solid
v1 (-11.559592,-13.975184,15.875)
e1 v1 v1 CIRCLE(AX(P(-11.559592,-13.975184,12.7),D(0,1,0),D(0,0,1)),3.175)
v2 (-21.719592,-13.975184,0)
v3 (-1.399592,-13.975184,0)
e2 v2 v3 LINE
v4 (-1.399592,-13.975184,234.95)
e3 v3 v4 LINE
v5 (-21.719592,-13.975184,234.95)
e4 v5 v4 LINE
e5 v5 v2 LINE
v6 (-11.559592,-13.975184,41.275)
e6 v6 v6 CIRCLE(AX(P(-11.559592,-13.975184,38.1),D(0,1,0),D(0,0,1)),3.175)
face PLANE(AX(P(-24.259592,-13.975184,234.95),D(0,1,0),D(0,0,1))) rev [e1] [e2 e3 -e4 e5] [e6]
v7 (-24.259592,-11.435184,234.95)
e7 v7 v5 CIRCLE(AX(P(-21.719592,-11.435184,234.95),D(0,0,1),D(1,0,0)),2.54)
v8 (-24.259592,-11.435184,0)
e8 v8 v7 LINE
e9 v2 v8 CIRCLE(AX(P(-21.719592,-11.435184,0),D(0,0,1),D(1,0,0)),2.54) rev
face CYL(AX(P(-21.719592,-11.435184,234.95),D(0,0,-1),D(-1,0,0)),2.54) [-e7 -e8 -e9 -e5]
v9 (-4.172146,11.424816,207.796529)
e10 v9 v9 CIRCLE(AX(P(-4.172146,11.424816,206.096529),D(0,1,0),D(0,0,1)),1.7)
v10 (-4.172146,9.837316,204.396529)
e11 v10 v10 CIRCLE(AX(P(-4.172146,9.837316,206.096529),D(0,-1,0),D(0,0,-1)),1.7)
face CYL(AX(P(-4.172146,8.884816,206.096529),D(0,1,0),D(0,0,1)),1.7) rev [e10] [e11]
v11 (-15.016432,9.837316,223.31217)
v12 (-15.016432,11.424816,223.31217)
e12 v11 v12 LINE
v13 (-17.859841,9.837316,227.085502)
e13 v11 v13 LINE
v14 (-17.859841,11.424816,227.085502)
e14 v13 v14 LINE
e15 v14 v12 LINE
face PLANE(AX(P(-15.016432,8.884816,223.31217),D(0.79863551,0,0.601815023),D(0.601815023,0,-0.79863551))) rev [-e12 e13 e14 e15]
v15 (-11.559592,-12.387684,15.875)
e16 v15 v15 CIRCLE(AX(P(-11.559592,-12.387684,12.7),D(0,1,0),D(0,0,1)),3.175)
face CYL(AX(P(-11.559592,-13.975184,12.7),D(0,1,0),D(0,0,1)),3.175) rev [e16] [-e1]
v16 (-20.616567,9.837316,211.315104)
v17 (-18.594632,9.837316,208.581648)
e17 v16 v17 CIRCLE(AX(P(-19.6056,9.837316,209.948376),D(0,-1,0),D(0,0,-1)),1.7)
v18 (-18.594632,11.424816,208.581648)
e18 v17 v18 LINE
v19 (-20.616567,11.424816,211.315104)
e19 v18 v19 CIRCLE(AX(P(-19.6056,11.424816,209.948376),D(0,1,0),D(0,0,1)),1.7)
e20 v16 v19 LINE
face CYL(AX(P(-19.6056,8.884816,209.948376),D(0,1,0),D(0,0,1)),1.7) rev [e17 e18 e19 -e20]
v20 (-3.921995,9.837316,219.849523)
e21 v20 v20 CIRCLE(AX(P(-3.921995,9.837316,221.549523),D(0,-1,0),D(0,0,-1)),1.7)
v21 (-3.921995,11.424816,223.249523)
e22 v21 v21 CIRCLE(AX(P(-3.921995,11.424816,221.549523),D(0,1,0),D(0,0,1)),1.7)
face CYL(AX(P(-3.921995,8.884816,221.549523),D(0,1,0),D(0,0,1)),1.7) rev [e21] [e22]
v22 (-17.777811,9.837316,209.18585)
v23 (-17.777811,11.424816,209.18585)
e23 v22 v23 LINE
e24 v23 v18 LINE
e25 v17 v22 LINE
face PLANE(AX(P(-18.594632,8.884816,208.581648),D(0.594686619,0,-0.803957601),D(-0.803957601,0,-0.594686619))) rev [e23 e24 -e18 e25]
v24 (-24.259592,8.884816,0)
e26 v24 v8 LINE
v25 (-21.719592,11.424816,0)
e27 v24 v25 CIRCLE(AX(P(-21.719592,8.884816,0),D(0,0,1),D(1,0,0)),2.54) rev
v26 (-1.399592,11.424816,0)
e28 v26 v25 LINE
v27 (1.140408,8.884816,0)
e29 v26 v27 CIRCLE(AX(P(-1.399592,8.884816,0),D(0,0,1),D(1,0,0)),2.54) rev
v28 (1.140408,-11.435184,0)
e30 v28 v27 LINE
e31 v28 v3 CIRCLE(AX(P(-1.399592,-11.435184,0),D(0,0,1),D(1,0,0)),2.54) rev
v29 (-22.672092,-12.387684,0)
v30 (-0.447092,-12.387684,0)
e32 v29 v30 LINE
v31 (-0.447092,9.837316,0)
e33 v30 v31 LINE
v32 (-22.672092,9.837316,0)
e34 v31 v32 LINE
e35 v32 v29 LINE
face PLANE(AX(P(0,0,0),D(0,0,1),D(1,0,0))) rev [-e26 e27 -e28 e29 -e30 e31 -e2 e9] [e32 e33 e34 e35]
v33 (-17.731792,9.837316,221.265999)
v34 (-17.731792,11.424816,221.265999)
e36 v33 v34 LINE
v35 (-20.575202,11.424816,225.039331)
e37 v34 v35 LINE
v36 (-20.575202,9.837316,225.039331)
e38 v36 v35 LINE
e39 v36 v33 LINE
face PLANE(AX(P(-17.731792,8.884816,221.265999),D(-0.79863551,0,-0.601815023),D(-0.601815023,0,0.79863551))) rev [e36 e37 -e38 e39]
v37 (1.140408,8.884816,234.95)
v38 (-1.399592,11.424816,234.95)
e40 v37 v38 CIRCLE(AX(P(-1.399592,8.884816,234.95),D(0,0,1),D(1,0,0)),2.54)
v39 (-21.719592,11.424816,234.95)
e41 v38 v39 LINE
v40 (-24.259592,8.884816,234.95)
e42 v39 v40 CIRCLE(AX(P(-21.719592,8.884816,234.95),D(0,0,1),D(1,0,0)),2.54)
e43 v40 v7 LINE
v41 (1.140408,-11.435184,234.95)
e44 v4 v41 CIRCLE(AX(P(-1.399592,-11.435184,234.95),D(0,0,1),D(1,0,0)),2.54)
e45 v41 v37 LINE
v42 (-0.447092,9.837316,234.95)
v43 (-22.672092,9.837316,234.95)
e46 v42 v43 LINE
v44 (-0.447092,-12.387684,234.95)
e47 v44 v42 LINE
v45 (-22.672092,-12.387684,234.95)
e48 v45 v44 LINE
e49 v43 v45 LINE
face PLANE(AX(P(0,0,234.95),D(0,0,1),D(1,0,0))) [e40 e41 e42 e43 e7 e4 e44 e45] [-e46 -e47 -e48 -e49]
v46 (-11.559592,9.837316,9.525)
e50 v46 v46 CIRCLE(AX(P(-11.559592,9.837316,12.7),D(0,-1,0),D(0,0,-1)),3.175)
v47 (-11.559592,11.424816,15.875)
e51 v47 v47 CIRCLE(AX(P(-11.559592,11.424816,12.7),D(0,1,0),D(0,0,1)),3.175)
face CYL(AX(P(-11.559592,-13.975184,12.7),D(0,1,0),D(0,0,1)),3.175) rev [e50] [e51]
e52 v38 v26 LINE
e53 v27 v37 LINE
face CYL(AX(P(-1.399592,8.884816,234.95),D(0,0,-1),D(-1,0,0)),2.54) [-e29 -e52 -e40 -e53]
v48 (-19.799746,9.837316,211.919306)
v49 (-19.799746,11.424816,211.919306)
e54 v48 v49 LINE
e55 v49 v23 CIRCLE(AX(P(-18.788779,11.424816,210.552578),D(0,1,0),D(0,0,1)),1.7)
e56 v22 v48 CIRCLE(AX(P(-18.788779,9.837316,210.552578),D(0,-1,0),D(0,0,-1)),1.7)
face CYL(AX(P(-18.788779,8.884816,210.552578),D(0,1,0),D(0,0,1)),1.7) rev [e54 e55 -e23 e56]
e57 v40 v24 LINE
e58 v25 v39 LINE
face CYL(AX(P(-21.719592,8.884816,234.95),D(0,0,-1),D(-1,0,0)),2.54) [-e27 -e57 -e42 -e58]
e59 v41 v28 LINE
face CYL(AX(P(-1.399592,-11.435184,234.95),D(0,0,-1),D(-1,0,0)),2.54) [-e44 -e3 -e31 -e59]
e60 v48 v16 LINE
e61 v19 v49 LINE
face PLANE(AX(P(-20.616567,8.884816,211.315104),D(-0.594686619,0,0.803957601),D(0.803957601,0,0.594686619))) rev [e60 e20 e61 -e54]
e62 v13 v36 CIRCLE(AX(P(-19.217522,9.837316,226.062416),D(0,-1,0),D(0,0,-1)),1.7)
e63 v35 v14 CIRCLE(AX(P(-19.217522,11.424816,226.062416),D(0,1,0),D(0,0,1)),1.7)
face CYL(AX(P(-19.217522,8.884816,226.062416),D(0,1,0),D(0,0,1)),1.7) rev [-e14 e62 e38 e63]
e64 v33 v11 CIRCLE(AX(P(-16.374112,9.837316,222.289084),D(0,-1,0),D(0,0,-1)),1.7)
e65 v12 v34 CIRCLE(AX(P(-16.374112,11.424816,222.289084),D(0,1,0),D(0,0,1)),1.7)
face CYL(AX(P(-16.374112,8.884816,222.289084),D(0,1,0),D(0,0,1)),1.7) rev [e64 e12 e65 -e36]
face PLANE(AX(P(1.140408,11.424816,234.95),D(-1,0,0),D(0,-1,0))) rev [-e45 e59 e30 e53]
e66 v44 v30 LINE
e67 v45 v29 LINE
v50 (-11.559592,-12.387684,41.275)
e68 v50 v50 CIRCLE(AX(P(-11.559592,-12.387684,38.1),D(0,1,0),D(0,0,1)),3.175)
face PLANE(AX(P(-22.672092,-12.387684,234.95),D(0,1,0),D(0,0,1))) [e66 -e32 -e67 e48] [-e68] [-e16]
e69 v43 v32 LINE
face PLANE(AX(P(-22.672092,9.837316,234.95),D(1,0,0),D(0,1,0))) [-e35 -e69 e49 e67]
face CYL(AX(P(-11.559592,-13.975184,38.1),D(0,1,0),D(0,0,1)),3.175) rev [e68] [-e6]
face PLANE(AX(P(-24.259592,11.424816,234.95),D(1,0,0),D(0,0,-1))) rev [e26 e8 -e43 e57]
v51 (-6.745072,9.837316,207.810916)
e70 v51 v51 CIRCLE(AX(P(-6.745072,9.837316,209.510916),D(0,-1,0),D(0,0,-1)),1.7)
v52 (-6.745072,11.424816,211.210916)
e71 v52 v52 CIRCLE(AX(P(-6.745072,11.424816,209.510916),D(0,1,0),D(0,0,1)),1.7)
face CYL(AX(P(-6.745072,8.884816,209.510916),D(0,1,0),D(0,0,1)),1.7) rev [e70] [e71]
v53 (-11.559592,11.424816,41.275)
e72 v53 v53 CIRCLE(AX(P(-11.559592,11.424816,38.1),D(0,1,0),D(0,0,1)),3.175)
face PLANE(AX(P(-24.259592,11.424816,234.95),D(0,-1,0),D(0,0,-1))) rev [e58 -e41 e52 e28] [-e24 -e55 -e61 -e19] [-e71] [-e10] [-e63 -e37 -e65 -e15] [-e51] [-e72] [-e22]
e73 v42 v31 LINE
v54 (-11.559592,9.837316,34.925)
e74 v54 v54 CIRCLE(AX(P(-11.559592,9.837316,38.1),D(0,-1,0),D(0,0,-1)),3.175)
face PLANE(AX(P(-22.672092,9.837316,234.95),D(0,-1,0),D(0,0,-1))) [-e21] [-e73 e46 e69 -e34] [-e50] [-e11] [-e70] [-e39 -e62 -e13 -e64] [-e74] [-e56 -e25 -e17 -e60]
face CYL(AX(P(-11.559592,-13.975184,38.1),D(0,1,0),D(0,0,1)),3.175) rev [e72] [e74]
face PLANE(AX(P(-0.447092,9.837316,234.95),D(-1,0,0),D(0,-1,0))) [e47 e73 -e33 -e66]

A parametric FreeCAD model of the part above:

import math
import FreeCAD as App
import Part
import Sketcher

V = App.Vector
Q = App.Units.Quantity


def edges_at(feature, points):
    """Names of the edges that pass closest to the given points."""
    edges = feature.Shape.Edges
    near = lambda p: min(range(len(edges)), key=lambda i: edges[i].distToShape(Part.Vertex(*p))[0])
    return sorted({f"Edge{near(p) + 1}" for p in points})

doc = App.newDocument("Part")
params = doc.addObject("Spreadsheet::Sheet", "Params")
for row, (alias, value) in enumerate([
    ("sketch1_width", "1 in"),
    ("sketch1_width2", "0.875 in"),
    ("pad1_length", "9.25 in"),
    ("fillet_radius", "0.1 in"),
    ("sketch2_diameter", "0.25 in"),
    ("sketch3_length", "0.04 in"),
    ("pocket2_length", "0.1 in"),
], start=1):
    params.set(f"A{row}", alias)
    params.set(f"B{row}", "=" + value)
    params.setAlias(f"B{row}", alias)

body = doc.addObject("PartDesign::Body", "Body")

# Sketch on XY plane
sketch1 = body.newObject("Sketcher::SketchObject", "Sketch")
sketch1.AttachmentSupport = (doc.getObject("XY_Plane"), [""])
sketch1.MapMode = "FlatFace"
sketch1.addGeometry(Part.LineSegment(V(-24, 11, 0), V(-24, -14, 0)), False)
sketch1.addGeometry(Part.LineSegment(V(-24, -14, 0), V(1, -14, 0)), False)
sketch1.addGeometry(Part.LineSegment(V(1, -14, 0), V(1, 11, 0)), False)
sketch1.addGeometry(Part.LineSegment(V(1, 11, 0), V(-24, 11, 0)), False)
sketch1.addGeometry(Part.LineSegment(V(0, -12, 0), V(-23, -12, 0)), False)
sketch1.addGeometry(Part.LineSegment(V(-23, -12, 0), V(-23, 10, 0)), False)
sketch1.addGeometry(Part.LineSegment(V(-23, 10, 0), V(0, 10, 0)), False)
sketch1.addGeometry(Part.LineSegment(V(0, 10, 0), V(0, -12, 0)), False)
sketch1.addConstraint(Sketcher.Constraint("Coincident", 0, 2, 1, 1))
sketch1.addConstraint(Sketcher.Constraint("Coincident", 1, 2, 2, 1))
sketch1.addConstraint(Sketcher.Constraint("Coincident", 2, 2, 3, 1))
sketch1.addConstraint(Sketcher.Constraint("Coincident", 3, 2, 0, 1))
sketch1.addConstraint(Sketcher.Constraint("Coincident", 4, 2, 5, 1))
sketch1.addConstraint(Sketcher.Constraint("Coincident", 5, 2, 6, 1))
sketch1.addConstraint(Sketcher.Constraint("Coincident", 6, 2, 7, 1))
sketch1.addConstraint(Sketcher.Constraint("Coincident", 7, 2, 4, 1))
sketch1.addConstraint(Sketcher.Constraint("Vertical", 0))
sketch1.addConstraint(Sketcher.Constraint("Horizontal", 1))
sketch1.addConstraint(Sketcher.Constraint("Vertical", 2))
sketch1.addConstraint(Sketcher.Constraint("Horizontal", 3))
sketch1.addConstraint(Sketcher.Constraint("Horizontal", 4))
sketch1.addConstraint(Sketcher.Constraint("Vertical", 5))
sketch1.addConstraint(Sketcher.Constraint("Horizontal", 6))
sketch1.addConstraint(Sketcher.Constraint("Vertical", 7))
sketch1.addConstraint(Sketcher.Constraint("Equal", 3, 0))
sketch1.addConstraint(Sketcher.Constraint("Equal", 6, 5))
sketch1.addConstraint(Sketcher.Constraint("DistanceX", 1, 1, 1, 2, Q("1 in")))
sketch1.addConstraint(Sketcher.Constraint("DistanceX", 4, 2, 4, 1, Q("0.875 in")))
sketch1.addConstraint(Sketcher.Constraint("DistanceX", 0, 2, 4, 2, Q("0.0625 in")))
sketch1.addConstraint(Sketcher.Constraint("DistanceY", 0, 2, 4, 2, Q("0.0625 in")))
sketch1.addConstraint(Sketcher.Constraint("DistanceX", 0, 2, -1, 1, 24.259592))
sketch1.addConstraint(Sketcher.Constraint("DistanceY", 0, 2, -1, 1, 13.975184))
sketch1.setExpression("Constraints[18]", "Params.sketch1_width")
sketch1.setExpression("Constraints[19]", "Params.sketch1_width2")
pad1 = body.newObject("PartDesign::Pad", "Pad")
pad1.Profile = sketch1
pad1.setExpression("Length", "Params.pad1_length")
doc.recompute()

fillet = body.newObject("PartDesign::Fillet", "Fillet")
fillet.Base = (pad1, edges_at(pad1, [
    (-24.26, 11.425, 117.475),
    (1.14, 11.425, 117.475),
    (1.14, -13.975, 117.475),
    (-24.26, -13.975, 117.475),
]))
fillet.setExpression("Radius", "Params.fillet_radius")

# Sketch on XZ plane
sketch2 = body.newObject("Sketcher::SketchObject", "Sketch001")
sketch2.AttachmentSupport = (doc.getObject("XZ_Plane"), [""])
sketch2.MapMode = "FlatFace"
sketch2.AttachmentOffset = App.Placement(V(0, 0, -11.424816), App.Rotation())
sketch2.addGeometry(Part.Circle(V(-11.6, 12.7, 0), V(0, 0, 1), 3.2), False)
sketch2.addGeometry(Part.Circle(V(-11.6, 38.1, 0), V(0, 0, 1), 3.2), False)
sketch2.addConstraint(Sketcher.Constraint("Equal", 0, 1))
sketch2.addConstraint(Sketcher.Constraint("Vertical", 0, 3, 1, 3))
sketch2.addConstraint(Sketcher.Constraint("Diameter", 0, Q("0.25 in")))
sketch2.addConstraint(Sketcher.Constraint("DistanceY", 0, 3, 1, 3, Q("1 in")))
sketch2.addConstraint(Sketcher.Constraint("DistanceY", -1, 1, 0, 3, Q("0.5 in")))
sketch2.addConstraint(Sketcher.Constraint("DistanceX", 0, 3, -1, 1, 11.559592))
sketch2.setExpression("Constraints[2]", "Params.sketch2_diameter")
pocket1 = body.newObject("PartDesign::Pocket", "Pocket")
pocket1.Profile = sketch2
pocket1.Type = "ThroughAll"
pocket1.Reversed = True

# Sketch on XZ plane
sketch3 = body.newObject("Sketcher::SketchObject", "Sketch002")
sketch3.AttachmentSupport = (doc.getObject("XZ_Plane"), [""])
sketch3.MapMode = "FlatFace"
sketch3.AttachmentOffset = App.Placement(V(0, 0, -11.424816), App.Rotation())
sketch3.addGeometry(Part.Circle(V(-6.7, 209.5, 0), V(0, 0, 1), 1.7), False)
sketch3.addGeometry(Part.Circle(V(-4.2, 206.1, 0), V(0, 0, 1), 1.7), False)
sketch3.addGeometry(Part.Circle(V(-3.9, 221.5, 0), V(0, 0, 1), 1.7), False)
sketch3.addGeometry(Part.LineSegment(V(-17.9, 227.1, 0), V(-15, 223.3, 0)), False)
sketch3.addGeometry(Part.ArcOfCircle(Part.Circle(V(-16.4, 222.3, 0), V(0, 0, 1), 1.7), math.radians(-143), math.radians(37)), False)
sketch3.addGeometry(Part.LineSegment(V(-17.7, 221.3, 0), V(-20.6, 225, 0)), False)
sketch3.addGeometry(Part.ArcOfCircle(Part.Circle(V(-19.2, 226.1, 0), V(0, 0, 1), 1.7), math.radians(37), math.radians(217)), False)
sketch3.addGeometry(Part.LineSegment(V(-17.8, 209.2, 0), V(-18.6, 208.6, 0)), False)
sketch3.addGeometry(Part.ArcOfCircle(Part.Circle(V(-19.6, 209.9, 0), V(0, 0, 1), 1.7), math.radians(126), math.radians(306)), False)
sketch3.addGeometry(Part.LineSegment(V(-20.6, 211.3, 0), V(-19.8, 211.9, 0)), False)
sketch3.addGeometry(Part.ArcOfCircle(Part.Circle(V(-18.8, 210.6, 0), V(0, 0, 1), 1.7), math.radians(-54), math.radians(126)), False)
sketch3.addConstraint(Sketcher.Constraint("Tangent", 3, 2, 4, 2))
sketch3.addConstraint(Sketcher.Constraint("Tangent", 4, 1, 5, 1))
sketch3.addConstraint(Sketcher.Constraint("Tangent", 5, 2, 6, 2))
sketch3.addConstraint(Sketcher.Constraint("Tangent", 6, 1, 3, 1))
sketch3.addConstraint(Sketcher.Constraint("Tangent", 7, 2, 8, 2))
sketch3.addConstraint(Sketcher.Constraint("Tangent", 8, 1, 9, 1))
sketch3.addConstraint(Sketcher.Constraint("Tangent", 9, 2, 10, 2))
sketch3.addConstraint(Sketcher.Constraint("Tangent", 10, 1, 7, 1))
sketch3.addConstraint(Sketcher.Constraint("Equal", 0, 1))
sketch3.addConstraint(Sketcher.Constraint("Equal", 1, 2))
sketch3.addConstraint(Sketcher.Constraint("Equal", 2, 4))
sketch3.addConstraint(Sketcher.Constraint("Equal", 4, 6))
sketch3.addConstraint(Sketcher.Constraint("Equal", 6, 8))
sketch3.addConstraint(Sketcher.Constraint("Equal", 8, 10))
sketch3.addConstraint(Sketcher.Constraint("Angle", 3, Q("-53 deg")))
sketch3.addConstraint(Sketcher.Constraint("Distance", 7, Q("0.04 in")))
sketch3.addConstraint(Sketcher.Constraint("Diameter", 0, 3.4))
sketch3.addConstraint(Sketcher.Constraint("DistanceX", 8, 3, -1, 1, 19.6056))
sketch3.addConstraint(Sketcher.Constraint("DistanceY", -1, 1, 4, 1, 221.265999))
sketch3.addConstraint(Sketcher.Constraint("DistanceY", -1, 1, 6, 1, 227.085502))
sketch3.addConstraint(Sketcher.Constraint("DistanceY", 0, 3, 6, 3, 16.5515))
sketch3.addConstraint(Sketcher.Constraint("DistanceY", 8, 3, 10, 3, 0.604202))
sketch3.addConstraint(Sketcher.Constraint("DistanceX", 0, 3, -1, 1, 6.745072))
sketch3.addConstraint(Sketcher.Constraint("DistanceY", -1, 1, 1, 3, 206.096529))
sketch3.addConstraint(Sketcher.Constraint("DistanceX", 6, 3, -1, 1, 19.217522))
sketch3.addConstraint(Sketcher.Constraint("DistanceY", -1, 1, 7, 2, 208.581648))
sketch3.addConstraint(Sketcher.Constraint("DistanceX", 1, 3, 2, 3, 0.250152))
sketch3.addConstraint(Sketcher.Constraint("DistanceY", 2, 3, 4, 3, 0.739561))
sketch3.addConstraint(Sketcher.Constraint("DistanceX", 1, 3, -1, 1, 4.172146))
sketch3.setExpression("Constraints[15]", "Params.sketch3_length")
pocket2 = body.newObject("PartDesign::Pocket", "Pocket001")
pocket2.Profile = sketch3
pocket2.setExpression("Length", "Params.pocket2_length")
pocket2.Reversed = True

doc.recompute()
